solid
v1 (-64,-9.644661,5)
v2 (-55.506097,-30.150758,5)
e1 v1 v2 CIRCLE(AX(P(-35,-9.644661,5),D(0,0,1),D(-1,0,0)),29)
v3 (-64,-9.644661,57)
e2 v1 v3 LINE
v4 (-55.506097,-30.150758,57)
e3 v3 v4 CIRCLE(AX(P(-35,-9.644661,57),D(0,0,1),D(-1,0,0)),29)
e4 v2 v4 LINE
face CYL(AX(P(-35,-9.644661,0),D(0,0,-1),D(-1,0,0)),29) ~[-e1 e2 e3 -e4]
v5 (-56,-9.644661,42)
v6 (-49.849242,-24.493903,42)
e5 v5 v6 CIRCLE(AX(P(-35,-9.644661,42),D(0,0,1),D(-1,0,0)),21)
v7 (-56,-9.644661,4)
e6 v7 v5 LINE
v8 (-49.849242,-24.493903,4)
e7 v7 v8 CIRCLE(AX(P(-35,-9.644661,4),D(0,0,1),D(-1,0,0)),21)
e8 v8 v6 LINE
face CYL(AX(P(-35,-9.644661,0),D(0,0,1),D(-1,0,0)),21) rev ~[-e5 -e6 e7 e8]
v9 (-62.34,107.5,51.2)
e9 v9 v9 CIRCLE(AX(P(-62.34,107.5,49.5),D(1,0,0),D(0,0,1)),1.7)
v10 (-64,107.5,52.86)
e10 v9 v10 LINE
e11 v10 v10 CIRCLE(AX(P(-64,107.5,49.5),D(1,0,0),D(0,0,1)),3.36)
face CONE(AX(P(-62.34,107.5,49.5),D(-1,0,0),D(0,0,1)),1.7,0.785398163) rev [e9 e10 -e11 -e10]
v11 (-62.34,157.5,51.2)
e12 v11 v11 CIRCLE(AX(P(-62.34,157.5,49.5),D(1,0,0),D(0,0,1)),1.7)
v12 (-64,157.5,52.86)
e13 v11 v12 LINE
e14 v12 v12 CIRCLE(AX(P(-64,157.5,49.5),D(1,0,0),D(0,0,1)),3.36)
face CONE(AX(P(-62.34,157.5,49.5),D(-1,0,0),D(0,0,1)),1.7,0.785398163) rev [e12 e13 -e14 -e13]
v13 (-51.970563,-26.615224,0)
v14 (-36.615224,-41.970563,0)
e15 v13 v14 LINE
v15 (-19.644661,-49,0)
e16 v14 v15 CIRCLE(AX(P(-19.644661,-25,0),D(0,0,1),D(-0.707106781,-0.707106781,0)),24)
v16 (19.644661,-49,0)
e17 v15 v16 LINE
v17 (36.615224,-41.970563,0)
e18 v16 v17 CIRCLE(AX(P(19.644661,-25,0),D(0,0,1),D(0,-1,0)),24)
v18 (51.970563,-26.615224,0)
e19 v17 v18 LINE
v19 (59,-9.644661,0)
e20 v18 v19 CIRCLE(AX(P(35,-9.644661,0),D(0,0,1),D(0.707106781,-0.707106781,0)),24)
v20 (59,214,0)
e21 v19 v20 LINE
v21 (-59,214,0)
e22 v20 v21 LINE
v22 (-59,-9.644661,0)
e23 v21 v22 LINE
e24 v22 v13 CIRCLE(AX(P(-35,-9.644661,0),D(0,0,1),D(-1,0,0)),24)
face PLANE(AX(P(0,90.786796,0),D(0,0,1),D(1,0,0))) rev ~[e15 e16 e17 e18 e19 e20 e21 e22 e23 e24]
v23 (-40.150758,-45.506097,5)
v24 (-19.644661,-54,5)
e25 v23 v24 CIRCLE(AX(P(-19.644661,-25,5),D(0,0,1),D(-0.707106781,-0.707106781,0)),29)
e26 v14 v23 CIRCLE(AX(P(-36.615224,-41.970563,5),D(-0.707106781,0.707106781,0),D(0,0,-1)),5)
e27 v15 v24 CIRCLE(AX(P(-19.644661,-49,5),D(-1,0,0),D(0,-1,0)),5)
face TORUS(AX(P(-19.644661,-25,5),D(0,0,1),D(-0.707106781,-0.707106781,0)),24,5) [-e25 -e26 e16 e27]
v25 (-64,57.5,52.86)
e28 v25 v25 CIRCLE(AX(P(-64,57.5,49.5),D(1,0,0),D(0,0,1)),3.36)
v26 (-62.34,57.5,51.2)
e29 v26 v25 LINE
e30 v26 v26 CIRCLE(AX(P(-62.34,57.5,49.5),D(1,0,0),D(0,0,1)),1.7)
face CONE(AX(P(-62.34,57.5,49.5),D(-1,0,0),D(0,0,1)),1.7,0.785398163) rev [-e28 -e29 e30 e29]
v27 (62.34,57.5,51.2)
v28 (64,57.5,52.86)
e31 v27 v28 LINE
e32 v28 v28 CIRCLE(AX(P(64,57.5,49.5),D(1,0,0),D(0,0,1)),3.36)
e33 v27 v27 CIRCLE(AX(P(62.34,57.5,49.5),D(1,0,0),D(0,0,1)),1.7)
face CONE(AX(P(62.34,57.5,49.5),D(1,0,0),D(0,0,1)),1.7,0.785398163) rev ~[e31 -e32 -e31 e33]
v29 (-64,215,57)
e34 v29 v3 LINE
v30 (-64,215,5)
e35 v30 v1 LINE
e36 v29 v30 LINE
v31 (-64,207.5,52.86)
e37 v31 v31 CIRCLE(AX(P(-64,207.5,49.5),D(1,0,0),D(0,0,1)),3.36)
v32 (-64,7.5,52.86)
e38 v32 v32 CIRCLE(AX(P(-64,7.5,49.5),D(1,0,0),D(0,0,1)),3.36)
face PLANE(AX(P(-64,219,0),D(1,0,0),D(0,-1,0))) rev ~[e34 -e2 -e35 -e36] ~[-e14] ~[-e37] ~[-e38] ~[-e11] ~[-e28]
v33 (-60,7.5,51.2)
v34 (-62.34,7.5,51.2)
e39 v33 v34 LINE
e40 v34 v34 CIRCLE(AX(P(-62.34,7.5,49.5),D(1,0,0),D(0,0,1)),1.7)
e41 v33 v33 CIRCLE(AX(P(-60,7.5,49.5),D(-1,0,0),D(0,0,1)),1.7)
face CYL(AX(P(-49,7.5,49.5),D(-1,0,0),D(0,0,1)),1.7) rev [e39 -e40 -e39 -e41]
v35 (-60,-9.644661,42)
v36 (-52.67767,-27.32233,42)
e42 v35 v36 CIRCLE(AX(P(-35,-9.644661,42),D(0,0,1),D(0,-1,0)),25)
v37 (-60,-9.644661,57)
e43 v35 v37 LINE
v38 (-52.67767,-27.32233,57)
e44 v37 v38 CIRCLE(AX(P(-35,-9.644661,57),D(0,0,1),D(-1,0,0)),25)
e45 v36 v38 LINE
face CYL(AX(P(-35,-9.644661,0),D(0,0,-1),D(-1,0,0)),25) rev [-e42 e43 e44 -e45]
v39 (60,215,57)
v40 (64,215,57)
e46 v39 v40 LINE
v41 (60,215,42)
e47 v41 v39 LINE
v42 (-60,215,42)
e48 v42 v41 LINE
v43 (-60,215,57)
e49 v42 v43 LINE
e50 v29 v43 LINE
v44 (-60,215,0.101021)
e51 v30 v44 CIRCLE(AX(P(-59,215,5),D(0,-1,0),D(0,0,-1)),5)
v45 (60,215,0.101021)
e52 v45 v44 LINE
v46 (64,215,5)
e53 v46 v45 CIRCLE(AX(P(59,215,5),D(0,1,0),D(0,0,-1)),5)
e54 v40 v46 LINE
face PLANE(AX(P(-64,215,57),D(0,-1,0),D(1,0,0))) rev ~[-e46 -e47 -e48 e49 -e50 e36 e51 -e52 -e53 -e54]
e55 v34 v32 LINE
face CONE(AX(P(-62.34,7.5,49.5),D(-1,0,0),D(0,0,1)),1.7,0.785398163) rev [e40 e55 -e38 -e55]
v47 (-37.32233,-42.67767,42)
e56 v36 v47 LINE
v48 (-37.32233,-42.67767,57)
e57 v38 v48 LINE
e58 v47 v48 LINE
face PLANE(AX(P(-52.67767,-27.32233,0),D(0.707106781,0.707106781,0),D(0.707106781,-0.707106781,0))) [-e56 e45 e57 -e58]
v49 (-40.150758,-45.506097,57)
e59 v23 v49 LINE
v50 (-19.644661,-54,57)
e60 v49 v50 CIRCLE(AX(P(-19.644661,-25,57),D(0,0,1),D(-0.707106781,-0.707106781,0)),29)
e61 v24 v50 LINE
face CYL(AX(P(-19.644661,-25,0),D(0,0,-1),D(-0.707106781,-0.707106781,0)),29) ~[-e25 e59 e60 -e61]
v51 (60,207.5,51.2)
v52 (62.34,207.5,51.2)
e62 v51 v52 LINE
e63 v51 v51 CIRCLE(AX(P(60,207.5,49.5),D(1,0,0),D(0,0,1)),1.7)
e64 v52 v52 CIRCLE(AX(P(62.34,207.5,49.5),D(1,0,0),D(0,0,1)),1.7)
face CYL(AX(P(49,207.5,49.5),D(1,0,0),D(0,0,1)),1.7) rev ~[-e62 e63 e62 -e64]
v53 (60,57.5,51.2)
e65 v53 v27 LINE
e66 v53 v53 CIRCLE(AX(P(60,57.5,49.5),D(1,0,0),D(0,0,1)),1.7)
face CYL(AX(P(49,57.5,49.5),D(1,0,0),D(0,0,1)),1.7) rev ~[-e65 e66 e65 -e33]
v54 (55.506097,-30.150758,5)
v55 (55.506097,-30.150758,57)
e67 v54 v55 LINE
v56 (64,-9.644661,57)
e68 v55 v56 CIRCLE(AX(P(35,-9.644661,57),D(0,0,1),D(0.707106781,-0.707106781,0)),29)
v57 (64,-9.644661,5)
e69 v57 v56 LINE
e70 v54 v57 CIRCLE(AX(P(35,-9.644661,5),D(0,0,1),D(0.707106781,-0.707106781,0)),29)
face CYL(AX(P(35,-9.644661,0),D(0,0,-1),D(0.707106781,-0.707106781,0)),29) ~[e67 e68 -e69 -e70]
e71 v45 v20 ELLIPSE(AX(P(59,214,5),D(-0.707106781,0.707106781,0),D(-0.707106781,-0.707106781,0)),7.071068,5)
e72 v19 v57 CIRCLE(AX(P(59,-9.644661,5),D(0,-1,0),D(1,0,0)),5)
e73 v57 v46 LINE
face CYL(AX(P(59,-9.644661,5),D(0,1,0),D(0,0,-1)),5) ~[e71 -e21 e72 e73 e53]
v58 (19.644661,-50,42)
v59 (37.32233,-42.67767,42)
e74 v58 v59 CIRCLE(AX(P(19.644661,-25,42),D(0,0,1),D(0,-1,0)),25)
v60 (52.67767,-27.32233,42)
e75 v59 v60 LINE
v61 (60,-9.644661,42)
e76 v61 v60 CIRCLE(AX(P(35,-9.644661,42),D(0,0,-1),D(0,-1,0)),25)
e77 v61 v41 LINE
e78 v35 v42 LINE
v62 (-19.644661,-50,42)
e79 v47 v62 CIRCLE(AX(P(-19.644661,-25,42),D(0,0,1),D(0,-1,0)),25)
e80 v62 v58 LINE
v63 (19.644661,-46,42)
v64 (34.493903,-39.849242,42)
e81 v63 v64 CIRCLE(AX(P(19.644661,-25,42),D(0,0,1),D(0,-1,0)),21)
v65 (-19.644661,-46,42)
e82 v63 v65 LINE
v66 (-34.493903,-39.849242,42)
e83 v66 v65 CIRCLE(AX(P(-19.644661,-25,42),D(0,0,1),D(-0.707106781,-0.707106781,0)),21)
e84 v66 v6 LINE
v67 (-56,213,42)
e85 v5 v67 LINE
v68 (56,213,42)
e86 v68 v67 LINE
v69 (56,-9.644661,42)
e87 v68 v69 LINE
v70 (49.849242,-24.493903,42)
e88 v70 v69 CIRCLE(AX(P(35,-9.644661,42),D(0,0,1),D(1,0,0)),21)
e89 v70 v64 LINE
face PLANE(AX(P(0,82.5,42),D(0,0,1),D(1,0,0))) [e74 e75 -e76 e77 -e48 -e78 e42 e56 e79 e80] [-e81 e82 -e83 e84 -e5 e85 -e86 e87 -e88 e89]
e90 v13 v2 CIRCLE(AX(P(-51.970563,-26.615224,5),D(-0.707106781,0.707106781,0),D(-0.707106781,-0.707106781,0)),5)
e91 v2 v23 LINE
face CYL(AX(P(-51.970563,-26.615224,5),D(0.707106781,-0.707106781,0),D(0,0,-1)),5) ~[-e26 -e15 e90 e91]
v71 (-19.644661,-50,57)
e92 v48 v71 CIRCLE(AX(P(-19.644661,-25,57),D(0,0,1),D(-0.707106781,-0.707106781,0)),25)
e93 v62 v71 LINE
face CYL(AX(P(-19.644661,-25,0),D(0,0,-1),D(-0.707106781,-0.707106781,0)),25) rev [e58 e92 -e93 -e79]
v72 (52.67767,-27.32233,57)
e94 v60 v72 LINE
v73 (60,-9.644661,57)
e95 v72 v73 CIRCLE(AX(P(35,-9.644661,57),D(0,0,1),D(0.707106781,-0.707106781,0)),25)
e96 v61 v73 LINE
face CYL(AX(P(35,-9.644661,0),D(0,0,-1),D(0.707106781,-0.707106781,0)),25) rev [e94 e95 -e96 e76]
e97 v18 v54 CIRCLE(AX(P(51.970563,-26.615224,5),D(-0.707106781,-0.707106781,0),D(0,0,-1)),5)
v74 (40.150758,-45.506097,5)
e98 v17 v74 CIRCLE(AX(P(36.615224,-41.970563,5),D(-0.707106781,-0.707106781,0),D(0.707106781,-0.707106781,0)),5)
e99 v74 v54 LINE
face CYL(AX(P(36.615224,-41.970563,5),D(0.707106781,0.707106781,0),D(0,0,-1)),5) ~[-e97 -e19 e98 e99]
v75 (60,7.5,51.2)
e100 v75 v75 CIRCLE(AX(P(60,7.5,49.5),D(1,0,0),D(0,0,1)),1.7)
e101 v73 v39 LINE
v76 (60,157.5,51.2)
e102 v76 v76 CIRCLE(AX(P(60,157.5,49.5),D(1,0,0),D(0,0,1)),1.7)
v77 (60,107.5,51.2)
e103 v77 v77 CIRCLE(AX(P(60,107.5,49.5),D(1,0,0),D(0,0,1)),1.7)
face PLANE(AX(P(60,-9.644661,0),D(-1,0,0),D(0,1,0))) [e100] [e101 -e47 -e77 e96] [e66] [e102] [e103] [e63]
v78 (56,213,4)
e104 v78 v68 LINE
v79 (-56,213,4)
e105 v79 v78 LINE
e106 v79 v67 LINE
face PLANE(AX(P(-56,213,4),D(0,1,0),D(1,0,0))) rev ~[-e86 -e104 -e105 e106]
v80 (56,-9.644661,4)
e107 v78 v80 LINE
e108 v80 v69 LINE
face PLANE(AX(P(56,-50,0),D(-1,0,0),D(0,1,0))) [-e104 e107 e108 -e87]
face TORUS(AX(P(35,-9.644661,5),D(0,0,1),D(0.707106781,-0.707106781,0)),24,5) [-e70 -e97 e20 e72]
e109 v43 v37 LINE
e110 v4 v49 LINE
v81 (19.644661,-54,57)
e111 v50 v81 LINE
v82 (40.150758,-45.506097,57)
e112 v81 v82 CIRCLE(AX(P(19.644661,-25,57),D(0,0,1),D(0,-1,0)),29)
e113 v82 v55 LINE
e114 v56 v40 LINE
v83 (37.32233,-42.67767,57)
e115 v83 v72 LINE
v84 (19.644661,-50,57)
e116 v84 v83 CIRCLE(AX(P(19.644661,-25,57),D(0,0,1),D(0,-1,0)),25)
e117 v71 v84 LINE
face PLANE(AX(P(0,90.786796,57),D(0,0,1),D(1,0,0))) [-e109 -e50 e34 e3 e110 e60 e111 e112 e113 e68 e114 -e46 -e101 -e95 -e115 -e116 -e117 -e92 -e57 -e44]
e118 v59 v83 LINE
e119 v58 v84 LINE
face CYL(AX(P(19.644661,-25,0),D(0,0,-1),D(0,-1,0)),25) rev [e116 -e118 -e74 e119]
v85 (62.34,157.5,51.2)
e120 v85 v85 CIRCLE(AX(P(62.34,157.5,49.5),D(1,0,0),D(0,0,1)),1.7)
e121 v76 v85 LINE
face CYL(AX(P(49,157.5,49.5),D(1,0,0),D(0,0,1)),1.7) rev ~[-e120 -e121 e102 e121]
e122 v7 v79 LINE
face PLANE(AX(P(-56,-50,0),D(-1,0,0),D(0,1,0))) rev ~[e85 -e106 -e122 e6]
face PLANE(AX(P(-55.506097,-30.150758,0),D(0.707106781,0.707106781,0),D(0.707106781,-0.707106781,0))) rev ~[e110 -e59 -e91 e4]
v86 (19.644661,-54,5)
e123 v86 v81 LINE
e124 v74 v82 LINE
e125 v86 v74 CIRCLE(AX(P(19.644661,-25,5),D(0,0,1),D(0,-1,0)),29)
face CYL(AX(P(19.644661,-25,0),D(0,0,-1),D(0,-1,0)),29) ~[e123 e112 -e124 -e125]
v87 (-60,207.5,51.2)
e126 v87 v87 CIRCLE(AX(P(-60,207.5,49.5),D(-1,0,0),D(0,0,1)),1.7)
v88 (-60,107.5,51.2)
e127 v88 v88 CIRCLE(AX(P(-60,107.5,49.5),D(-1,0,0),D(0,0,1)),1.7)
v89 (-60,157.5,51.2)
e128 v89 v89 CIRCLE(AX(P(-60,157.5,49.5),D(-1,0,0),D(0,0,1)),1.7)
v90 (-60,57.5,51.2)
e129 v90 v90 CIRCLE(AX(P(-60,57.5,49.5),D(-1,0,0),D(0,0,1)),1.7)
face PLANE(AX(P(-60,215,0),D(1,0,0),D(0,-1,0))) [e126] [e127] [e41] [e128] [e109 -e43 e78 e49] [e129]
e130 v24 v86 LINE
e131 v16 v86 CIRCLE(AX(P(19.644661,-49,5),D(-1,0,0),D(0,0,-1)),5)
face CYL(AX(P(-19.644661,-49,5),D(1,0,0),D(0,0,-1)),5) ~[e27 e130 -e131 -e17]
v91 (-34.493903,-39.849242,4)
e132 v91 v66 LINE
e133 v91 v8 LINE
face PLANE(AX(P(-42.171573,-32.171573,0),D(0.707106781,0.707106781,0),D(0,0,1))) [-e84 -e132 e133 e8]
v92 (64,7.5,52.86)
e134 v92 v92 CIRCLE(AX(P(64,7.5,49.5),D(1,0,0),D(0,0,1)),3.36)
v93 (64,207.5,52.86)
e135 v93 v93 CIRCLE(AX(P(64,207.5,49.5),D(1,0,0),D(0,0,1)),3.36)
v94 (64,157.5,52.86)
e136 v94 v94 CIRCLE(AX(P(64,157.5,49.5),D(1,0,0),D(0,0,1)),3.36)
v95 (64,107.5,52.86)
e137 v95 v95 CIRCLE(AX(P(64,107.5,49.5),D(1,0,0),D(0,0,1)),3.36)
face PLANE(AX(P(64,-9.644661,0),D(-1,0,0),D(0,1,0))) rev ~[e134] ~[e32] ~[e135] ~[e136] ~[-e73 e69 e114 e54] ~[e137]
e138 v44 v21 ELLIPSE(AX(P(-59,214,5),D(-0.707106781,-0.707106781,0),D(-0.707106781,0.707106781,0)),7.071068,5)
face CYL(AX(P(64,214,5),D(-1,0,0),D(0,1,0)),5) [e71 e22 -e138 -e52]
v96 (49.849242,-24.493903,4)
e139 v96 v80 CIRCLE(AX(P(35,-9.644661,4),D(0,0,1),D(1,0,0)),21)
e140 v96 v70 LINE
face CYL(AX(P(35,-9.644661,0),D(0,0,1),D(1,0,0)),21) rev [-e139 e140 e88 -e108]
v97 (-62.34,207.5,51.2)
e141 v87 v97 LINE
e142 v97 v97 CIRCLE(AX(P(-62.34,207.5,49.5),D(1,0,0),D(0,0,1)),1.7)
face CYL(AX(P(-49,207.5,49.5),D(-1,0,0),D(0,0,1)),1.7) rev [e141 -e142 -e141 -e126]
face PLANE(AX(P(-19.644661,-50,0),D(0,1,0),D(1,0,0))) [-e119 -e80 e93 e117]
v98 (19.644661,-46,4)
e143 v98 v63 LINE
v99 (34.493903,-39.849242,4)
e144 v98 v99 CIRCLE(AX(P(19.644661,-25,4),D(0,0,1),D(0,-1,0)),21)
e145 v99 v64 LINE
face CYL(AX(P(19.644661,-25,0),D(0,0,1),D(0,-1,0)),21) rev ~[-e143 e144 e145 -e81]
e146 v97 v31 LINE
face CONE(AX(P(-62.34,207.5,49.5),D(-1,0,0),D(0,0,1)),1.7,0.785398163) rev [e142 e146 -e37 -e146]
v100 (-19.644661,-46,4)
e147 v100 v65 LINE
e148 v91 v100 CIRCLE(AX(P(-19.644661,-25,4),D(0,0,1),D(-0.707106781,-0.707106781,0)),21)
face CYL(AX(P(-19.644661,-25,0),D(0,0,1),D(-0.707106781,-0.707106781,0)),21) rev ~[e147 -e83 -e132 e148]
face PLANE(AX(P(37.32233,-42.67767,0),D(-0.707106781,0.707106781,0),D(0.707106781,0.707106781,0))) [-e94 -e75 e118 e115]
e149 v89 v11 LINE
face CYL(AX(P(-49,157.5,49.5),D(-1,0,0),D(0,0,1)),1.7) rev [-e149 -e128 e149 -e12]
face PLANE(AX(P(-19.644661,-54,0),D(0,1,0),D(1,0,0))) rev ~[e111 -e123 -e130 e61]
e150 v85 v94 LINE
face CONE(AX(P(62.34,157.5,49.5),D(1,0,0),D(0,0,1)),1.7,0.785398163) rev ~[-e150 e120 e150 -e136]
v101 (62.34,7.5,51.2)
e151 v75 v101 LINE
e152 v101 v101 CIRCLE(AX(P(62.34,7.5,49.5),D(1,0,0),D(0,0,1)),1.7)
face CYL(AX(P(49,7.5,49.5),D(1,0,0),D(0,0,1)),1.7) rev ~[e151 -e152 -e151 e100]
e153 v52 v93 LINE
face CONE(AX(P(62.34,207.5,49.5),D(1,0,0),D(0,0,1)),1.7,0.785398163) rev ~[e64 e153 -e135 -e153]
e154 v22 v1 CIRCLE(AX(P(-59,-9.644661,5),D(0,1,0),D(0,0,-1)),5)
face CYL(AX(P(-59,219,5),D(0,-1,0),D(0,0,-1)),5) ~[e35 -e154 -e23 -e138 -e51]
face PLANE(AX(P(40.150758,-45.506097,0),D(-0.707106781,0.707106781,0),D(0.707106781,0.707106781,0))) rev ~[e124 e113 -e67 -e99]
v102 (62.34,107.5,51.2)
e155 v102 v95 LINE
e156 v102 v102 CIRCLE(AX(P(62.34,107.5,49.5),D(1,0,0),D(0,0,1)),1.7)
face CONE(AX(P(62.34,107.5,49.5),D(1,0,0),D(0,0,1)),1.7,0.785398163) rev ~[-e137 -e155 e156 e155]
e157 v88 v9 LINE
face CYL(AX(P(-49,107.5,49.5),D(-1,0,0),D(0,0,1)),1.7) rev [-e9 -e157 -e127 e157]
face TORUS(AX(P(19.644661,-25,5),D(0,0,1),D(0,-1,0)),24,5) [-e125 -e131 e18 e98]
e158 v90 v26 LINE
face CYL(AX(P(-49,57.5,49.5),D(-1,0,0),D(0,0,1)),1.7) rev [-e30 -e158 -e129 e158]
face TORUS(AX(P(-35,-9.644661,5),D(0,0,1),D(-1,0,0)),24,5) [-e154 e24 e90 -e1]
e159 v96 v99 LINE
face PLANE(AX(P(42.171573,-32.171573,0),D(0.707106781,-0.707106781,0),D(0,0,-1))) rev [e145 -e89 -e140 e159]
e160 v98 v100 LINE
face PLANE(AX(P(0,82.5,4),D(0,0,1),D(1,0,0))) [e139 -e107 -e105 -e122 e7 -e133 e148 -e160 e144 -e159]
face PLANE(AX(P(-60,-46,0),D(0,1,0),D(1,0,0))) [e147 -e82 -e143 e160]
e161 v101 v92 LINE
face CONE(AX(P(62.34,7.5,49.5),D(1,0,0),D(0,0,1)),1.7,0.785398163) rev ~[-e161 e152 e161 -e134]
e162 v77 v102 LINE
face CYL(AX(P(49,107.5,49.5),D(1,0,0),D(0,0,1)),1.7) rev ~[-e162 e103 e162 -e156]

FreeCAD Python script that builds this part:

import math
import FreeCAD as App
import Part
import Sketcher

V = App.Vector
Q = App.Units.Quantity


def edges_at(feature, points):
    """Names of the edges that pass closest to the given points."""
    edges = feature.Shape.Edges
    near = lambda p: min(range(len(edges)), key=lambda i: edges[i].distToShape(Part.Vertex(*p))[0])
    return sorted({f"Edge{near(p) + 1}" for p in points})


def faces_at(feature, points):
    """Names of the faces that lie closest to the given points."""
    faces = feature.Shape.Faces
    near = lambda p: min(range(len(faces)), key=lambda i: faces[i].distToShape(Part.Vertex(*p))[0])
    return sorted({f"Face{near(p) + 1}" for p in points})

doc = App.newDocument("Part")
params = doc.addObject("Spreadsheet::Sheet", "Params")
for row, (alias, value) in enumerate([
    ("sketch1_width", "120 mm"),
    ("sketch1_height", "265 mm"),
    ("pad1_length", "42 mm"),
    ("chamfer_size", "30 mm"),
    ("fillet_radius", "25 mm"),
    ("thickness_wall", "4 mm"),
    ("fillet2_radius", "5 mm"),
    ("sketch2_radius", "29 mm"),
    ("sketch2_radius2", "25 mm"),
    ("sketch2_width", "128 mm"),
    ("pad2_length", "15 mm"),
    ("pad2_length2", "42 mm"),
    ("fillet3_radius", "5 mm"),
    ("sketch3_width", "128 mm"),
    ("sketch3_height", "4 mm"),
    ("sketch4_width", "13.34 mm"),
    ("sketch4_height", "3.36 mm"),
    ("groove_angle", "360 deg"),
    ("linearpattern_pitch", "50 mm"),
    ("linearpattern2_pitch", "100 mm"),
    ("linearpattern3_pitch", "150 mm"),
    ("linearpattern4_pitch", "200 mm"),
    ("sketch5_width", "13.34 mm"),
    ("sketch5_height", "3.36 mm"),
    ("groove2_angle", "360 deg"),
    ("sketch6_width", "13.34 mm"),
    ("sketch6_height", "3.36 mm"),
    ("groove3_angle", "360 deg"),
    ("sketch7_width", "13.34 mm"),
    ("sketch7_height", "3.36 mm"),
    ("groove4_angle", "360 deg"),
    ("sketch8_width", "13.34 mm"),
    ("sketch8_height", "3.36 mm"),
    ("groove5_angle", "360 deg"),
    ("sketch9_width", "112 mm"),
], start=1):
    params.set(f"A{row}", alias)
    params.set(f"B{row}", "=" + value)
    params.setAlias(f"B{row}", alias)

body = doc.addObject("PartDesign::Body", "Body")

sketch1 = body.newObject("Sketcher::SketchObject", "Sketch")
sketch1.AttachmentSupport = (doc.getObject("XY_Plane"), [""])
sketch1.MapMode = "FlatFace"
sketch1.addGeometry([
    Part.LineSegment(V(-60, 215, 0), V(-60, -50, 0)),
    Part.LineSegment(V(-60, -50, 0), V(60, -50, 0)),
    Part.LineSegment(V(60, -50, 0), V(60, 215, 0)),
    Part.LineSegment(V(60, 215, 0), V(-60, 215, 0)),
], False)
sketch1.addConstraint([
    Sketcher.Constraint("Coincident", 0, 2, 1, 1),
    Sketcher.Constraint("Coincident", 1, 2, 2, 1),
    Sketcher.Constraint("Coincident", 2, 2, 3, 1),
    Sketcher.Constraint("Coincident", 3, 2, 0, 1),
    Sketcher.Constraint("Vertical", 0),
    Sketcher.Constraint("Horizontal", 1),
    Sketcher.Constraint("Vertical", 2),
    Sketcher.Constraint("Horizontal", 3),
    Sketcher.Constraint("DistanceX", 1, 1, 1, 2, 120.0),
    Sketcher.Constraint("DistanceY", 0, 2, 0, 1, 265.0),
    Sketcher.Constraint("DistanceX", 0, 2, -1, 1, 60.0),
    Sketcher.Constraint("DistanceY", 0, 2, -1, 1, 50.0),
])
sketch1.setExpression("Constraints[8]", "Params.sketch1_width")
sketch1.setExpression("Constraints[9]", "Params.sketch1_height")
pad1 = body.newObject("PartDesign::Pad", "Pad")
pad1.Profile = sketch1
pad1.setExpression("Length", "Params.pad1_length")
doc.recompute()

chamfer = body.newObject("PartDesign::Chamfer", "Chamfer")
chamfer.Base = (pad1, edges_at(pad1, [(60, -50, 21), (-60, -50, 21)]))
chamfer.setExpression("Size", "Params.chamfer_size")
doc.recompute()

fillet = body.newObject("PartDesign::Fillet", "Fillet")
fillet.Base = (chamfer, edges_at(chamfer, [
    (30, -50, 21),
    (-30, -50, 21),
    (-60, -20, 21),
    (60, -20, 21),
]))
fillet.setExpression("Radius", "Params.fillet_radius")
doc.recompute()

thickness = body.newObject("PartDesign::Thickness", "Thickness")
thickness.Base = (fillet, faces_at(fillet, [(0, 82.5, 42)]))
thickness.setExpression("Value", "Params.thickness_wall")
thickness.Reversed = True
thickness.Join = "Intersection"
doc.recompute()

fillet2 = body.newObject("PartDesign::Fillet", "Fillet001")
fillet2.Base = (thickness, edges_at(thickness, [(-56, 211, 23), (56, 211, 23)]))
fillet2.setExpression("Radius", "Params.fillet2_radius")

sketch2 = body.newObject("Sketcher::SketchObject", "Sketch001")
sketch2.AttachmentSupport = (doc.getObject("XY_Plane"), [""])
sketch2.MapMode = "FlatFace"
sketch2.AttachmentOffset = App.Placement(V(0, 0, 42), App.Rotation())
sketch2.addGeometry([
    Part.LineSegment(V(-64, 219, 0), V(-64, -10, 0)),
    Part.ArcOfCircle(Part.Circle(V(-35, -10, 0), V(0, 0, 1), 29), math.radians(180), math.radians(225)),
    Part.LineSegment(V(-56, -30, 0), V(-40, -46, 0)),
    Part.ArcOfCircle(Part.Circle(V(-20, -25, 0), V(0, 0, 1), 29), math.radians(-135), math.radians(-90)),
    Part.LineSegment(V(-20, -54, 0), V(20, -54, 0)),
    Part.ArcOfCircle(Part.Circle(V(20, -25, 0), V(0, 0, 1), 29), math.radians(-90), math.radians(-45)),
    Part.LineSegment(V(40, -46, 0), V(56, -30, 0)),
    Part.ArcOfCircle(Part.Circle(V(35, -10, 0), V(0, 0, 1), 29), math.radians(-45), math.radians(0)),
    Part.LineSegment(V(64, -10, 0), V(64, 219, 0)),
    Part.LineSegment(V(64, 219, 0), V(-64, 219, 0)),
    Part.LineSegment(V(-60, -10, 0), V(-60, 215, 0)),
    Part.LineSegment(V(-60, 215, 0), V(60, 215, 0)),
    Part.LineSegment(V(60, 215, 0), V(60, -10, 0)),
    Part.ArcOfCircle(Part.Circle(V(35, -10, 0), V(0, 0, 1), 25), math.radians(-45), math.radians(0)),
    Part.LineSegment(V(53, -27, 0), V(37, -43, 0)),
    Part.ArcOfCircle(Part.Circle(V(20, -25, 0), V(0, 0, 1), 25), math.radians(-90), math.radians(-45)),
    Part.LineSegment(V(20, -50, 0), V(-20, -50, 0)),
    Part.ArcOfCircle(Part.Circle(V(-20, -25, 0), V(0, 0, 1), 25), math.radians(-135), math.radians(-90)),
    Part.LineSegment(V(-37, -43, 0), V(-53, -27, 0)),
    Part.ArcOfCircle(Part.Circle(V(-35, -10, 0), V(0, 0, 1), 25), math.radians(180), math.radians(225)),
], False)
sketch2.addConstraint([
    Sketcher.Constraint("Tangent", 0, 2, 1, 1),
    Sketcher.Constraint("Tangent", 1, 2, 2, 1),
    Sketcher.Constraint("Tangent", 2, 2, 3, 1),
    Sketcher.Constraint("Tangent", 3, 2, 4, 1),
    Sketcher.Constraint("Tangent", 4, 2, 5, 1),
    Sketcher.Constraint("Tangent", 5, 2, 6, 1),
    Sketcher.Constraint("Tangent", 6, 2, 7, 1),
    Sketcher.Constraint("Tangent", 7, 2, 8, 1),
    Sketcher.Constraint("Coincident", 8, 2, 9, 1),
    Sketcher.Constraint("Coincident", 9, 2, 0, 1),
    Sketcher.Constraint("Coincident", 10, 2, 11, 1),
    Sketcher.Constraint("Coincident", 11, 2, 12, 1),
    Sketcher.Constraint("Tangent", 12, 2, 13, 2),
    Sketcher.Constraint("Tangent", 13, 1, 14, 1),
    Sketcher.Constraint("Tangent", 14, 2, 15, 2),
    Sketcher.Constraint("Tangent", 15, 1, 16, 1),
    Sketcher.Constraint("Tangent", 16, 2, 17, 2),
    Sketcher.Constraint("Tangent", 17, 1, 18, 1),
    Sketcher.Constraint("Tangent", 18, 2, 19, 2),
    Sketcher.Constraint("Tangent", 19, 1, 10, 1),
    Sketcher.Constraint("Vertical", 0),
    Sketcher.Constraint("Horizontal", 4),
    Sketcher.Constraint("Vertical", 8),
    Sketcher.Constraint("Horizontal", 9),
    Sketcher.Constraint("Vertical", 10),
    Sketcher.Constraint("Horizontal", 11),
    Sketcher.Constraint("Vertical", 12),
    Sketcher.Constraint("Horizontal", 16),
    Sketcher.Constraint("Coincident", 13, 3, 7, 3),
    Sketcher.Constraint("Coincident", 15, 3, 5, 3),
    Sketcher.Constraint("Coincident", 17, 3, 3, 3),
    Sketcher.Constraint("Coincident", 19, 3, 1, 3),
    Sketcher.Constraint("Equal", 1, 3),
    Sketcher.Constraint("Equal", 3, 5),
    Sketcher.Constraint("Equal", 5, 7),
    Sketcher.Constraint("Equal", 13, 15),
    Sketcher.Constraint("Equal", 17, 19),
    Sketcher.Constraint("Symmetric", 1, 3, 7, 3, -2),
    Sketcher.Constraint("Perpendicular", 2, 6),
    Sketcher.Constraint("Horizontal", 2, 2, 5, 2),
    Sketcher.Constraint("Radius", 1, 29.0),
    Sketcher.Constraint("Radius", 13, 25.0),
    Sketcher.Constraint("DistanceX", 9, 2, 9, 1, 128.0),
    Sketcher.Constraint("DistanceY", 3, 3, -1, 1, 25.0),
    Sketcher.Constraint("DistanceY", -1, 1, 8, 2, 219.0),
    Sketcher.Constraint("DistanceY", -1, 1, 10, 2, 215.0),
    Sketcher.Constraint("DistanceX", 4, 1, 4, 2, 39.289322),
])
sketch2.setExpression("Constraints[40]", "Params.sketch2_radius")
sketch2.setExpression("Constraints[41]", "Params.sketch2_radius2")
sketch2.setExpression("Constraints[42]", "Params.sketch2_width")
pad2 = body.newObject("PartDesign::Pad", "Pad001")
pad2.Profile = sketch2
pad2.Type = "TwoLengths"
pad2.setExpression("Length", "Params.pad2_length")
pad2.setExpression("Length2", "Params.pad2_length2")
doc.recompute()

fillet3 = body.newObject("PartDesign::Fillet", "Fillet002")
fillet3.Base = (pad2, edges_at(pad2, [
    (0, 219, 0),
    (64, 104.678, 0),
    (61.793, -20.742, 0),
    (47.828, -37.828, 0),
    (30.742, -51.793, 0),
    (0, -54, 0),
    (-30.742, -51.793, 0),
    (-47.828, -37.828, 0),
    (-61.793, -20.742, 0),
    (-64, 104.678, 0),
]))
fillet3.setExpression("Radius", "Params.fillet3_radius")

sketch3 = body.newObject("Sketcher::SketchObject", "Sketch002")
sketch3.AttachmentSupport = (doc.getObject("XY_Plane"), [""])
sketch3.MapMode = "FlatFace"
sketch3.AttachmentOffset = App.Placement(V(0, 0, 57), App.Rotation())
sketch3.addGeometry([
    Part.LineSegment(V(-64, 219, 0), V(-64, 215, 0)),
    Part.LineSegment(V(-64, 215, 0), V(64, 215, 0)),
    Part.LineSegment(V(64, 215, 0), V(64, 219, 0)),
    Part.LineSegment(V(64, 219, 0), V(-64, 219, 0)),
], False)
sketch3.addConstraint([
    Sketcher.Constraint("Coincident", 0, 2, 1, 1),
    Sketcher.Constraint("Coincident", 1, 2, 2, 1),
    Sketcher.Constraint("Coincident", 2, 2, 3, 1),
    Sketcher.Constraint("Coincident", 3, 2, 0, 1),
    Sketcher.Constraint("Vertical", 0),
    Sketcher.Constraint("Horizontal", 1),
    Sketcher.Constraint("Vertical", 2),
    Sketcher.Constraint("Horizontal", 3),
    Sketcher.Constraint("DistanceX", 1, 1, 1, 2, 128.0),
    Sketcher.Constraint("DistanceY", 0, 2, 0, 1, 4.0),
    Sketcher.Constraint("DistanceX", 0, 2, -1, 1, 64.0),
    Sketcher.Constraint("DistanceY", -1, 1, 0, 2, 215.0),
])
sketch3.setExpression("Constraints[8]", "Params.sketch3_width")
sketch3.setExpression("Constraints[9]", "Params.sketch3_height")
pocket1 = body.newObject("PartDesign::Pocket", "Pocket")
pocket1.Profile = sketch3
pocket1.Type = "ThroughAll"

sketch4 = body.newObject("Sketcher::SketchObject", "Sketch003")
sketch4.AttachmentSupport = (doc.getObject("XZ_Plane"), [""])
sketch4.MapMode = "FlatFace"
sketch4.AttachmentOffset = App.Placement(V(0, 0, -7.5), App.Rotation())
sketch4.addGeometry([
    Part.LineSegment(V(-48, 49.5, 0), V(-64, 49.5, 0)),
    Part.LineSegment(V(-64, 49.5, 0), V(-64, 52.9, 0)),
    Part.LineSegment(V(-64, 52.9, 0), V(-62.3, 51.2, 0)),
    Part.LineSegment(V(-62.3, 51.2, 0), V(-49, 51.2, 0)),
    Part.LineSegment(V(-49, 51.2, 0), V(-48, 49.5, 0)),
], False)
sketch4.addGeometry(Part.LineSegment(V(-64, 49.5, 0), V(-48, 49.5, 0)), True)
sketch4.addConstraint([
    Sketcher.Constraint("Coincident", 0, 2, 1, 1),
    Sketcher.Constraint("Coincident", 1, 2, 2, 1),
    Sketcher.Constraint("Coincident", 2, 2, 3, 1),
    Sketcher.Constraint("Coincident", 3, 2, 4, 1),
    Sketcher.Constraint("Coincident", 4, 2, 0, 1),
    Sketcher.Constraint("Horizontal", 0),
    Sketcher.Constraint("Vertical", 1),
    Sketcher.Constraint("Horizontal", 3),
    Sketcher.Constraint("Horizontal", 5),
    Sketcher.Constraint("Coincident", 5, 1, 0, 2),
    Sketcher.Constraint("Equal", 0, 5),
    Sketcher.Constraint("Angle", 2, Q("-45 deg")),
    Sketcher.Constraint("Angle", 4, Q("-59 deg")),
    Sketcher.Constraint("DistanceX", 0, 2, -1, 1, 64.0),
    Sketcher.Constraint("DistanceX", 3, 2, -1, 1, 49.0),
    Sketcher.Constraint("DistanceX", 3, 1, 3, 2, 13.34),
    Sketcher.Constraint("DistanceY", 1, 1, 1, 2, 3.36),
    Sketcher.Constraint("DistanceY", -1, 1, 0, 2, 49.5),
])
sketch4.setExpression("Constraints[15]", "Params.sketch4_width")
sketch4.setExpression("Constraints[16]", "Params.sketch4_height")
groove = body.newObject("PartDesign::Groove", "Groove")
groove.Profile = sketch4
groove.ReferenceAxis = (sketch4, ["Axis0"])
groove.setExpression("Angle", "Params.groove_angle")
doc.recompute()

linearpattern = body.newObject("PartDesign::LinearPattern", "LinearPattern")
linearpattern.Originals = [groove]
linearpattern.Direction = (doc.getObject("Y_Axis"), [""])
linearpattern.Mode = "offset"
linearpattern.setExpression("Offset", "Params.linearpattern_pitch")
linearpattern.Occurrences = 2
body.Tip = linearpattern
doc.recompute()

linearpattern2 = body.newObject("PartDesign::LinearPattern", "LinearPattern001")
linearpattern2.Originals = [groove]
linearpattern2.Direction = (doc.getObject("Y_Axis"), [""])
linearpattern2.Mode = "offset"
linearpattern2.setExpression("Offset", "Params.linearpattern2_pitch")
linearpattern2.Occurrences = 2
body.Tip = linearpattern2
doc.recompute()

linearpattern3 = body.newObject("PartDesign::LinearPattern", "LinearPattern002")
linearpattern3.Originals = [groove]
linearpattern3.Direction = (doc.getObject("Y_Axis"), [""])
linearpattern3.Mode = "offset"
linearpattern3.setExpression("Offset", "Params.linearpattern3_pitch")
linearpattern3.Occurrences = 2
body.Tip = linearpattern3
doc.recompute()

linearpattern4 = body.newObject("PartDesign::LinearPattern", "LinearPattern003")
linearpattern4.Originals = [groove]
linearpattern4.Direction = (doc.getObject("Y_Axis"), [""])
linearpattern4.Mode = "offset"
linearpattern4.setExpression("Offset", "Params.linearpattern4_pitch")
linearpattern4.Occurrences = 2
body.Tip = linearpattern4
doc.recompute()

mirrored = body.newObject("PartDesign::Mirrored", "Mirrored")
mirrored.Originals = [groove]
mirrored.MirrorPlane = (doc.getObject("YZ_Plane"), [""])
body.Tip = mirrored

sketch5 = body.newObject("Sketcher::SketchObject", "Sketch004")
sketch5.AttachmentSupport = (doc.getObject("XZ_Plane"), [""])
sketch5.MapMode = "FlatFace"
sketch5.AttachmentOffset = App.Placement(V(0, 0, -57.5), App.Rotation())
sketch5.addGeometry([
    Part.LineSegment(V(64, 49.5, 0), V(48, 49.5, 0)),
    Part.LineSegment(V(48, 49.5, 0), V(49, 51.2, 0)),
    Part.LineSegment(V(49, 51.2, 0), V(62.3, 51.2, 0)),
    Part.LineSegment(V(62.3, 51.2, 0), V(64, 52.9, 0)),
    Part.LineSegment(V(64, 52.9, 0), V(64, 49.5, 0)),
], False)
sketch5.addGeometry(Part.LineSegment(V(48, 49.5, 0), V(64, 49.5, 0)), True)
sketch5.addConstraint([
    Sketcher.Constraint("Coincident", 0, 2, 1, 1),
    Sketcher.Constraint("Coincident", 1, 2, 2, 1),
    Sketcher.Constraint("Coincident", 2, 2, 3, 1),
    Sketcher.Constraint("Coincident", 3, 2, 4, 1),
    Sketcher.Constraint("Coincident", 4, 2, 0, 1),
    Sketcher.Constraint("Horizontal", 0),
    Sketcher.Constraint("Horizontal", 2),
    Sketcher.Constraint("Vertical", 4),
    Sketcher.Constraint("Horizontal", 5),
    Sketcher.Constraint("Coincident", 5, 1, 0, 2),
    Sketcher.Constraint("Vertical", 3, 2, 5, 2),
    Sketcher.Constraint("Angle", 1, Q("59 deg")),
    Sketcher.Constraint("Angle", 3, Q("45 deg")),
    Sketcher.Constraint("DistanceX", -1, 1, 1, 2, 49.0),
    Sketcher.Constraint("DistanceX", -1, 1, 3, 2, 64.0),
    Sketcher.Constraint("DistanceX", 2, 1, 2, 2, 13.34),
    Sketcher.Constraint("DistanceY", 4, 2, 4, 1, 3.36),
    Sketcher.Constraint("DistanceY", -1, 1, 0, 2, 49.5),
])
sketch5.setExpression("Constraints[15]", "Params.sketch5_width")
sketch5.setExpression("Constraints[16]", "Params.sketch5_height")
groove2 = body.newObject("PartDesign::Groove", "Groove001")
groove2.Profile = sketch5
groove2.ReferenceAxis = (sketch5, ["Axis0"])
groove2.setExpression("Angle", "Params.groove2_angle")

sketch6 = body.newObject("Sketcher::SketchObject", "Sketch005")
sketch6.AttachmentSupport = (doc.getObject("XZ_Plane"), [""])
sketch6.MapMode = "FlatFace"
sketch6.AttachmentOffset = App.Placement(V(0, 0, -107.5), App.Rotation())
sketch6.addGeometry([
    Part.LineSegment(V(64, 49.5, 0), V(48, 49.5, 0)),
    Part.LineSegment(V(48, 49.5, 0), V(49, 51.2, 0)),
    Part.LineSegment(V(49, 51.2, 0), V(62.3, 51.2, 0)),
    Part.LineSegment(V(62.3, 51.2, 0), V(64, 52.9, 0)),
    Part.LineSegment(V(64, 52.9, 0), V(64, 49.5, 0)),
], False)
sketch6.addGeometry(Part.LineSegment(V(48, 49.5, 0), V(64, 49.5, 0)), True)
sketch6.addConstraint([
    Sketcher.Constraint("Coincident", 0, 2, 1, 1),
    Sketcher.Constraint("Coincident", 1, 2, 2, 1),
    Sketcher.Constraint("Coincident", 2, 2, 3, 1),
    Sketcher.Constraint("Coincident", 3, 2, 4, 1),
    Sketcher.Constraint("Coincident", 4, 2, 0, 1),
    Sketcher.Constraint("Horizontal", 0),
    Sketcher.Constraint("Horizontal", 2),
    Sketcher.Constraint("Vertical", 4),
    Sketcher.Constraint("Horizontal", 5),
    Sketcher.Constraint("Coincident", 5, 1, 0, 2),
    Sketcher.Constraint("Vertical", 3, 2, 5, 2),
    Sketcher.Constraint("Angle", 1, Q("59 deg")),
    Sketcher.Constraint("Angle", 3, Q("45 deg")),
    Sketcher.Constraint("DistanceX", -1, 1, 1, 2, 49.0),
    Sketcher.Constraint("DistanceX", -1, 1, 3, 2, 64.0),
    Sketcher.Constraint("DistanceX", 2, 1, 2, 2, 13.34),
    Sketcher.Constraint("DistanceY", 4, 2, 4, 1, 3.36),
    Sketcher.Constraint("DistanceY", -1, 1, 0, 2, 49.5),
])
sketch6.setExpression("Constraints[15]", "Params.sketch6_width")
sketch6.setExpression("Constraints[16]", "Params.sketch6_height")
groove3 = body.newObject("PartDesign::Groove", "Groove002")
groove3.Profile = sketch6
groove3.ReferenceAxis = (sketch6, ["Axis0"])
groove3.setExpression("Angle", "Params.groove3_angle")

sketch7 = body.newObject("Sketcher::SketchObject", "Sketch006")
sketch7.AttachmentSupport = (doc.getObject("XZ_Plane"), [""])
sketch7.MapMode = "FlatFace"
sketch7.AttachmentOffset = App.Placement(V(0, 0, -157.5), App.Rotation())
sketch7.addGeometry([
    Part.LineSegment(V(64, 49.5, 0), V(48, 49.5, 0)),
    Part.LineSegment(V(48, 49.5, 0), V(49, 51.2, 0)),
    Part.LineSegment(V(49, 51.2, 0), V(62.3, 51.2, 0)),
    Part.LineSegment(V(62.3, 51.2, 0), V(64, 52.9, 0)),
    Part.LineSegment(V(64, 52.9, 0), V(64, 49.5, 0)),
], False)
sketch7.addGeometry(Part.LineSegment(V(48, 49.5, 0), V(64, 49.5, 0)), True)
sketch7.addConstraint([
    Sketcher.Constraint("Coincident", 0, 2, 1, 1),
    Sketcher.Constraint("Coincident", 1, 2, 2, 1),
    Sketcher.Constraint("Coincident", 2, 2, 3, 1),
    Sketcher.Constraint("Coincident", 3, 2, 4, 1),
    Sketcher.Constraint("Coincident", 4, 2, 0, 1),
    Sketcher.Constraint("Horizontal", 0),
    Sketcher.Constraint("Horizontal", 2),
    Sketcher.Constraint("Vertical", 4),
    Sketcher.Constraint("Horizontal", 5),
    Sketcher.Constraint("Coincident", 5, 1, 0, 2),
    Sketcher.Constraint("Vertical", 3, 2, 5, 2),
    Sketcher.Constraint("Angle", 1, Q("59 deg")),
    Sketcher.Constraint("Angle", 3, Q("45 deg")),
    Sketcher.Constraint("DistanceX", -1, 1, 1, 2, 49.0),
    Sketcher.Constraint("DistanceX", -1, 1, 3, 2, 64.0),
    Sketcher.Constraint("DistanceX", 2, 1, 2, 2, 13.34),
    Sketcher.Constraint("DistanceY", 4, 2, 4, 1, 3.36),
    Sketcher.Constraint("DistanceY", -1, 1, 0, 2, 49.5),
])
sketch7.setExpression("Constraints[15]", "Params.sketch7_width")
sketch7.setExpression("Constraints[16]", "Params.sketch7_height")
groove4 = body.newObject("PartDesign::Groove", "Groove003")
groove4.Profile = sketch7
groove4.ReferenceAxis = (sketch7, ["Axis0"])
groove4.setExpression("Angle", "Params.groove4_angle")

sketch8 = body.newObject("Sketcher::SketchObject", "Sketch007")
sketch8.AttachmentSupport = (doc.getObject("XZ_Plane"), [""])
sketch8.MapMode = "FlatFace"
sketch8.AttachmentOffset = App.Placement(V(0, 0, -207.5), App.Rotation())
sketch8.addGeometry([
    Part.LineSegment(V(64, 49.5, 0), V(48, 49.5, 0)),
    Part.LineSegment(V(48, 49.5, 0), V(49, 51.2, 0)),
    Part.LineSegment(V(49, 51.2, 0), V(62.3, 51.2, 0)),
    Part.LineSegment(V(62.3, 51.2, 0), V(64, 52.9, 0)),
    Part.LineSegment(V(64, 52.9, 0), V(64, 49.5, 0)),
], False)
sketch8.addGeometry(Part.LineSegment(V(48, 49.5, 0), V(64, 49.5, 0)), True)
sketch8.addConstraint([
    Sketcher.Constraint("Coincident", 0, 2, 1, 1),
    Sketcher.Constraint("Coincident", 1, 2, 2, 1),
    Sketcher.Constraint("Coincident", 2, 2, 3, 1),
    Sketcher.Constraint("Coincident", 3, 2, 4, 1),
    Sketcher.Constraint("Coincident", 4, 2, 0, 1),
    Sketcher.Constraint("Horizontal", 0),
    Sketcher.Constraint("Horizontal", 2),
    Sketcher.Constraint("Vertical", 4),
    Sketcher.Constraint("Horizontal", 5),
    Sketcher.Constraint("Coincident", 5, 1, 0, 2),
    Sketcher.Constraint("Vertical", 3, 2, 5, 2),
    Sketcher.Constraint("Angle", 1, Q("59 deg")),
    Sketcher.Constraint("Angle", 3, Q("45 deg")),
    Sketcher.Constraint("DistanceX", -1, 1, 1, 2, 49.0),
    Sketcher.Constraint("DistanceX", -1, 1, 3, 2, 64.0),
    Sketcher.Constraint("DistanceX", 2, 1, 2, 2, 13.34),
    Sketcher.Constraint("DistanceY", 4, 2, 4, 1, 3.36),
    Sketcher.Constraint("DistanceY", -1, 1, 0, 2, 49.5),
])
sketch8.setExpression("Constraints[15]", "Params.sketch8_width")
sketch8.setExpression("Constraints[16]", "Params.sketch8_height")
groove5 = body.newObject("PartDesign::Groove", "Groove004")
groove5.Profile = sketch8
groove5.ReferenceAxis = (sketch8, ["Axis0"])
groove5.setExpression("Angle", "Params.groove5_angle")

sketch9 = body.newObject("Sketcher::SketchObject", "Sketch008")
sketch9.AttachmentSupport = (doc.getObject("XY_Plane"), [""])
sketch9.MapMode = "FlatFace"
sketch9.AttachmentOffset = App.Placement(V(0, 0, 4), App.Rotation())
sketch9.addGeometry([
    Part.LineSegment(V(-56, 213, 0), V(-56, 192, 0)),
    Part.LineSegment(V(-56, 192, 0), V(56, 192, 0)),
    Part.LineSegment(V(56, 192, 0), V(56, 213, 0)),
    Part.LineSegment(V(56, 213, 0), V(-56, 213, 0)),
], False)
sketch9.addConstraint([
    Sketcher.Constraint("Coincident", 0, 2, 1, 1),
    Sketcher.Constraint("Coincident", 1, 2, 2, 1),
    Sketcher.Constraint("Coincident", 2, 2, 3, 1),
    Sketcher.Constraint("Coincident", 3, 2, 0, 1),
    Sketcher.Constraint("Vertical", 0),
    Sketcher.Constraint("Horizontal", 1),
    Sketcher.Constraint("Vertical", 2),
    Sketcher.Constraint("Horizontal", 3),
    Sketcher.Constraint("DistanceX", 1, 1, 1, 2, 112.0),
    Sketcher.Constraint("DistanceX", 0, 2, -1, 1, 56.0),
    Sketcher.Constraint("DistanceY", -1, 1, 2, 2, 213.0),
    Sketcher.Constraint("DistanceY", 0, 2, 0, 1, 20.766379),
])
sketch9.setExpression("Constraints[8]", "Params.sketch9_width")
pocket2 = body.newObject("PartDesign::Pocket", "Pocket001")
pocket2.Profile = sketch9
pocket2.Type = "ThroughAll"
pocket2.Reversed = True

doc.recompute()
